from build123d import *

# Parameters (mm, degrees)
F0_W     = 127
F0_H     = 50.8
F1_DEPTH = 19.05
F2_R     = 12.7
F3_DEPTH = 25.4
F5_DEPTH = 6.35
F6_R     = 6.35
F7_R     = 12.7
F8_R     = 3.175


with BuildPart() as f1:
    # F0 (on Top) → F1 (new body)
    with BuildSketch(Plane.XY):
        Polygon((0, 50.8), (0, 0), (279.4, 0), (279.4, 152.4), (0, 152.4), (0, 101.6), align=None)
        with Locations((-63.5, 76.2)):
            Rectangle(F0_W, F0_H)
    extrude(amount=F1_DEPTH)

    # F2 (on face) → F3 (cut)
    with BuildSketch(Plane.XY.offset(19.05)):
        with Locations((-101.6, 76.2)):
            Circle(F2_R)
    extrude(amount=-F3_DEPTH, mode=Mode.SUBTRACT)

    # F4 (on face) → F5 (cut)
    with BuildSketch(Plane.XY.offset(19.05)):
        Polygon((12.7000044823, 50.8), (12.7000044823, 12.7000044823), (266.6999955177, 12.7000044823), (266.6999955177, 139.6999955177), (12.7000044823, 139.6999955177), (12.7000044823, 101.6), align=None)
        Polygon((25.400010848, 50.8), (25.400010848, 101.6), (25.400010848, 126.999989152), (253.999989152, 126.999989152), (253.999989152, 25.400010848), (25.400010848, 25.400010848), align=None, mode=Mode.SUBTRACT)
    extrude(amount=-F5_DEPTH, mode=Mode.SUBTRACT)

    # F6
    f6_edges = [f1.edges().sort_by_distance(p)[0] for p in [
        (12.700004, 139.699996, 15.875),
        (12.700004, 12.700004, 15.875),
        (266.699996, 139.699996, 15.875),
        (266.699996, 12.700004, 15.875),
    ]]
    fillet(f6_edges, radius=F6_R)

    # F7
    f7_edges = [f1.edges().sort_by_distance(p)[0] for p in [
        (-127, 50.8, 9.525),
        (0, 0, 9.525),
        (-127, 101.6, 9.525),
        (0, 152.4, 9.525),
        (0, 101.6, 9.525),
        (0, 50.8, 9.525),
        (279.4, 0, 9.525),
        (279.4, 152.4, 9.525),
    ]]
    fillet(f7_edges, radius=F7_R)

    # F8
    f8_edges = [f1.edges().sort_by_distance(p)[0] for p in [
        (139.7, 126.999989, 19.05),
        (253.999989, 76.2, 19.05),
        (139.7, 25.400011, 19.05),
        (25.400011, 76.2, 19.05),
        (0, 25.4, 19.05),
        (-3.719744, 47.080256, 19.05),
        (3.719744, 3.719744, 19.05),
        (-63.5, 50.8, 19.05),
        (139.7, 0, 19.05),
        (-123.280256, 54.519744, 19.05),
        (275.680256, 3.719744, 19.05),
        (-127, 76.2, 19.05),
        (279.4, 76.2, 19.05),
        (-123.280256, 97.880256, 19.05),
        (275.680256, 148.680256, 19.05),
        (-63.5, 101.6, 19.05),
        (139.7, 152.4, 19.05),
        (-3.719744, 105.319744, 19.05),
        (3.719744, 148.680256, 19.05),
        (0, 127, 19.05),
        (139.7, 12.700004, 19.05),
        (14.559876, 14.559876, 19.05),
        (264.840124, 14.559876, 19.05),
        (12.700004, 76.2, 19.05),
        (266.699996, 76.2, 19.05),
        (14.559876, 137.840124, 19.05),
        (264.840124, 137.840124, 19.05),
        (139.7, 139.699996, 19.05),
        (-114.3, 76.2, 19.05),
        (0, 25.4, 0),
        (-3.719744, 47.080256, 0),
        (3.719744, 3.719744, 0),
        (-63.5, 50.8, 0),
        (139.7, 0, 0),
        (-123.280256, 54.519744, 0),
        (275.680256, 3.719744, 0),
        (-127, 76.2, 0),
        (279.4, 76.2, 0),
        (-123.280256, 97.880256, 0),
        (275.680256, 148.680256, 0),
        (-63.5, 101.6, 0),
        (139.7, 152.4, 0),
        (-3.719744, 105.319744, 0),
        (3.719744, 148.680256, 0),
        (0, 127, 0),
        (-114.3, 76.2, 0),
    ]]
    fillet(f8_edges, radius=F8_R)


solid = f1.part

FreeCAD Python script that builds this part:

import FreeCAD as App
import Part
import Sketcher
from FreeCAD import Vector
Q = App.Units.Quantity


def edges_at(feature, points):
    """Names of the edges that pass closest to the given points."""
    edges = feature.Shape.Edges
    near = lambda p: min(range(len(edges)), key=lambda i: edges[i].distToShape(Part.Vertex(*p))[0])
    return sorted({f"Edge{near(p) + 1}" for p in points})


def add_polygon(sketch, points):
    """Adds a closed chain of lines whose ends are joined by coincident constraints."""
    first, n = sketch.GeometryCount, len(points)
    for a, b in zip(points, points[1:] + points[:1]):
        sketch.addGeometry(Part.LineSegment(App.Vector(*a, 0), App.Vector(*b, 0)), False)
    for i in range(n):
        sketch.addConstraint(Sketcher.Constraint("Coincident", first + i, 2, first + (i + 1) % n, 1))

doc = App.newDocument("Part")
body = doc.addObject("PartDesign::Body", "Body")

# Sketch on XY plane
sketch1 = body.newObject("Sketcher::SketchObject", "Sketch")
sketch1.AttachmentSupport = (doc.getObject("XY_Plane"), [""])
sketch1.MapMode = "FlatFace"
add_polygon(sketch1, [(0, 0), (279, 0), (279, 152), (0, 152), (0, 102), (-127, 102), (-127, 51), (0, 51)])  # lines 0-7
sketch1.addConstraint([
    Sketcher.Constraint("Horizontal", 0),
    Sketcher.Constraint("Vertical", 1),
    Sketcher.Constraint("Horizontal", 2),
    Sketcher.Constraint("Vertical", 3),
    Sketcher.Constraint("Horizontal", 4),
    Sketcher.Constraint("Vertical", 5),
    Sketcher.Constraint("Horizontal", 6),
    Sketcher.Constraint("Vertical", 7),
    Sketcher.Constraint("Coincident", 7, 2, -1, 1),
    Sketcher.Constraint("PointOnObject", 2, 2, -2),
    Sketcher.Constraint("Equal", 3, 5),
    Sketcher.Constraint("Equal", 5, 7),
    Sketcher.Constraint("DistanceX", 0, 1, 0, 2, Q("11 in")),
    Sketcher.Constraint("DistanceX", 4, 2, 4, 1, Q("5 in")),
    Sketcher.Constraint("DistanceY", 1, 1, 1, 2, Q("6 in")),
])
pad1 = body.newObject("PartDesign::Pad", "Pad")
pad1.Profile = sketch1
pad1.Length = Q("0.75 in")

# Sketch on XY plane
sketch2 = body.newObject("Sketcher::SketchObject", "Sketch001")
sketch2.AttachmentSupport = (doc.getObject("XY_Plane"), [""])
sketch2.MapMode = "FlatFace"
sketch2.AttachmentOffset = App.Placement(Vector(0, 0, 0.75 * 25.4), App.Rotation())
sketch2.addGeometry(Part.Circle(Vector(-102, 76, 0), Vector(0, 0, 1), 13), False)
sketch2.addConstraint([
    Sketcher.Constraint("Diameter", 0, Q("1 in")),
    Sketcher.Constraint("DistanceX", 0, 3, -1, 1, Q("4 in")),
    Sketcher.Constraint("DistanceY", -1, 1, 0, 3, Q("3 in")),
])
pocket1 = body.newObject("PartDesign::Pocket", "Pocket")
pocket1.Profile = sketch2
pocket1.Length = Q("1 in")

# Sketch on XY plane
sketch3 = body.newObject("Sketcher::SketchObject", "Sketch002")
sketch3.AttachmentSupport = (doc.getObject("XY_Plane"), [""])
sketch3.MapMode = "FlatFace"
sketch3.AttachmentOffset = App.Placement(Vector(0, 0, 0.75 * 25.4), App.Rotation())
add_polygon(sketch3, [(13, 13), (267, 13), (267, 140), (13, 140)])  # lines 0-3
add_polygon(sketch3, [(25, 25), (25, 127), (254, 127), (254, 25)])  # lines 4-7
sketch3.addConstraint([
    Sketcher.Constraint("Horizontal", 0),
    Sketcher.Constraint("Vertical", 1),
    Sketcher.Constraint("Horizontal", 2),
    Sketcher.Constraint("Vertical", 3),
    Sketcher.Constraint("Vertical", 4),
    Sketcher.Constraint("Horizontal", 5),
    Sketcher.Constraint("Vertical", 6),
    Sketcher.Constraint("Horizontal", 7),
    Sketcher.Constraint("DistanceX", -1, 1, 0, 2, Q("10.4999998 in")),
    Sketcher.Constraint("DistanceY", -1, 1, 0, 2, Q("0.5000002 in")),
    Sketcher.Constraint("DistanceY", -1, 1, 1, 2, Q("5.4999998 in")),
    Sketcher.Constraint("DistanceX", -1, 1, 2, 2, Q("0.5000002 in")),
    Sketcher.Constraint("DistanceX", 5, 1, 5, 2, 228.599978),
    Sketcher.Constraint("DistanceY", 4, 1, 4, 2, 101.599978),
    Sketcher.Constraint("DistanceX", -1, 1, 4, 2, 25.400011),
    Sketcher.Constraint("DistanceY", -1, 1, 4, 2, 126.999989),
])
pocket2 = body.newObject("PartDesign::Pocket", "Pocket001")
pocket2.Profile = sketch3
pocket2.Length = Q("0.25 in")
doc.recompute()

fillet = body.newObject("PartDesign::Fillet", "Fillet")
fillet.Base = (pocket2, edges_at(pocket2, [
    (12.7, 139.7, 15.875),
    (12.7, 12.7, 15.875),
    (266.7, 139.7, 15.875),
    (266.7, 12.7, 15.875),
]))
fillet.Radius = Q("0.25 in")
doc.recompute()

fillet2 = body.newObject("PartDesign::Fillet", "Fillet001")
fillet2.Base = (fillet, edges_at(fillet, [
    (-127, 50.8, 9.525),
    (0, 0, 9.525),
    (-127, 101.6, 9.525),
    (0, 152.4, 9.525),
    (0, 101.6, 9.525),
    (0, 50.8, 9.525),
    (279.4, 0, 9.525),
    (279.4, 152.4, 9.525),
]))
fillet2.Radius = Q("0.5 in")
doc.recompute()

fillet3 = body.newObject("PartDesign::Fillet", "Fillet002")
fillet3.Base = (fillet2, edges_at(fillet2, [
    (139.7, 127, 19.05),
    (254, 76.2, 19.05),
    (139.7, 25.4, 19.05),
    (25.4, 76.2, 19.05),
    (0, 25.4, 19.05),
    (-3.72, 47.08, 19.05),
    (3.72, 3.72, 19.05),
    (-63.5, 50.8, 19.05),
    (139.7, 0, 19.05),
    (-123.28, 54.52, 19.05),
    (275.68, 3.72, 19.05),
    (-127, 76.2, 19.05),
    (279.4, 76.2, 19.05),
    (-123.28, 97.88, 19.05),
    (275.68, 148.68, 19.05),
    (-63.5, 101.6, 19.05),
    (139.7, 152.4, 19.05),
    (-3.72, 105.32, 19.05),
    (3.72, 148.68, 19.05),
    (0, 127, 19.05),
    (139.7, 12.7, 19.05),
    (14.56, 14.56, 19.05),
    (264.84, 14.56, 19.05),
    (12.7, 76.2, 19.05),
    (266.7, 76.2, 19.05),
    (14.56, 137.84, 19.05),
    (264.84, 137.84, 19.05),
    (139.7, 139.7, 19.05),
    (-114.3, 76.2, 19.05),
    (0, 25.4, 0),
    (-3.72, 47.08, 0),
    (3.72, 3.72, 0),
    (-63.5, 50.8, 0),
    (139.7, 0, 0),
    (-123.28, 54.52, 0),
    (275.68, 3.72, 0),
    (-127, 76.2, 0),
    (279.4, 76.2, 0),
    (-123.28, 97.88, 0),
    (275.68, 148.68, 0),
    (-63.5, 101.6, 0),
    (139.7, 152.4, 0),
    (-3.72, 105.32, 0),
    (3.72, 148.68, 0),
    (0, 127, 0),
    (-114.3, 76.2, 0),
]))
fillet3.Radius = Q("0.125 in")

doc.recompute()
